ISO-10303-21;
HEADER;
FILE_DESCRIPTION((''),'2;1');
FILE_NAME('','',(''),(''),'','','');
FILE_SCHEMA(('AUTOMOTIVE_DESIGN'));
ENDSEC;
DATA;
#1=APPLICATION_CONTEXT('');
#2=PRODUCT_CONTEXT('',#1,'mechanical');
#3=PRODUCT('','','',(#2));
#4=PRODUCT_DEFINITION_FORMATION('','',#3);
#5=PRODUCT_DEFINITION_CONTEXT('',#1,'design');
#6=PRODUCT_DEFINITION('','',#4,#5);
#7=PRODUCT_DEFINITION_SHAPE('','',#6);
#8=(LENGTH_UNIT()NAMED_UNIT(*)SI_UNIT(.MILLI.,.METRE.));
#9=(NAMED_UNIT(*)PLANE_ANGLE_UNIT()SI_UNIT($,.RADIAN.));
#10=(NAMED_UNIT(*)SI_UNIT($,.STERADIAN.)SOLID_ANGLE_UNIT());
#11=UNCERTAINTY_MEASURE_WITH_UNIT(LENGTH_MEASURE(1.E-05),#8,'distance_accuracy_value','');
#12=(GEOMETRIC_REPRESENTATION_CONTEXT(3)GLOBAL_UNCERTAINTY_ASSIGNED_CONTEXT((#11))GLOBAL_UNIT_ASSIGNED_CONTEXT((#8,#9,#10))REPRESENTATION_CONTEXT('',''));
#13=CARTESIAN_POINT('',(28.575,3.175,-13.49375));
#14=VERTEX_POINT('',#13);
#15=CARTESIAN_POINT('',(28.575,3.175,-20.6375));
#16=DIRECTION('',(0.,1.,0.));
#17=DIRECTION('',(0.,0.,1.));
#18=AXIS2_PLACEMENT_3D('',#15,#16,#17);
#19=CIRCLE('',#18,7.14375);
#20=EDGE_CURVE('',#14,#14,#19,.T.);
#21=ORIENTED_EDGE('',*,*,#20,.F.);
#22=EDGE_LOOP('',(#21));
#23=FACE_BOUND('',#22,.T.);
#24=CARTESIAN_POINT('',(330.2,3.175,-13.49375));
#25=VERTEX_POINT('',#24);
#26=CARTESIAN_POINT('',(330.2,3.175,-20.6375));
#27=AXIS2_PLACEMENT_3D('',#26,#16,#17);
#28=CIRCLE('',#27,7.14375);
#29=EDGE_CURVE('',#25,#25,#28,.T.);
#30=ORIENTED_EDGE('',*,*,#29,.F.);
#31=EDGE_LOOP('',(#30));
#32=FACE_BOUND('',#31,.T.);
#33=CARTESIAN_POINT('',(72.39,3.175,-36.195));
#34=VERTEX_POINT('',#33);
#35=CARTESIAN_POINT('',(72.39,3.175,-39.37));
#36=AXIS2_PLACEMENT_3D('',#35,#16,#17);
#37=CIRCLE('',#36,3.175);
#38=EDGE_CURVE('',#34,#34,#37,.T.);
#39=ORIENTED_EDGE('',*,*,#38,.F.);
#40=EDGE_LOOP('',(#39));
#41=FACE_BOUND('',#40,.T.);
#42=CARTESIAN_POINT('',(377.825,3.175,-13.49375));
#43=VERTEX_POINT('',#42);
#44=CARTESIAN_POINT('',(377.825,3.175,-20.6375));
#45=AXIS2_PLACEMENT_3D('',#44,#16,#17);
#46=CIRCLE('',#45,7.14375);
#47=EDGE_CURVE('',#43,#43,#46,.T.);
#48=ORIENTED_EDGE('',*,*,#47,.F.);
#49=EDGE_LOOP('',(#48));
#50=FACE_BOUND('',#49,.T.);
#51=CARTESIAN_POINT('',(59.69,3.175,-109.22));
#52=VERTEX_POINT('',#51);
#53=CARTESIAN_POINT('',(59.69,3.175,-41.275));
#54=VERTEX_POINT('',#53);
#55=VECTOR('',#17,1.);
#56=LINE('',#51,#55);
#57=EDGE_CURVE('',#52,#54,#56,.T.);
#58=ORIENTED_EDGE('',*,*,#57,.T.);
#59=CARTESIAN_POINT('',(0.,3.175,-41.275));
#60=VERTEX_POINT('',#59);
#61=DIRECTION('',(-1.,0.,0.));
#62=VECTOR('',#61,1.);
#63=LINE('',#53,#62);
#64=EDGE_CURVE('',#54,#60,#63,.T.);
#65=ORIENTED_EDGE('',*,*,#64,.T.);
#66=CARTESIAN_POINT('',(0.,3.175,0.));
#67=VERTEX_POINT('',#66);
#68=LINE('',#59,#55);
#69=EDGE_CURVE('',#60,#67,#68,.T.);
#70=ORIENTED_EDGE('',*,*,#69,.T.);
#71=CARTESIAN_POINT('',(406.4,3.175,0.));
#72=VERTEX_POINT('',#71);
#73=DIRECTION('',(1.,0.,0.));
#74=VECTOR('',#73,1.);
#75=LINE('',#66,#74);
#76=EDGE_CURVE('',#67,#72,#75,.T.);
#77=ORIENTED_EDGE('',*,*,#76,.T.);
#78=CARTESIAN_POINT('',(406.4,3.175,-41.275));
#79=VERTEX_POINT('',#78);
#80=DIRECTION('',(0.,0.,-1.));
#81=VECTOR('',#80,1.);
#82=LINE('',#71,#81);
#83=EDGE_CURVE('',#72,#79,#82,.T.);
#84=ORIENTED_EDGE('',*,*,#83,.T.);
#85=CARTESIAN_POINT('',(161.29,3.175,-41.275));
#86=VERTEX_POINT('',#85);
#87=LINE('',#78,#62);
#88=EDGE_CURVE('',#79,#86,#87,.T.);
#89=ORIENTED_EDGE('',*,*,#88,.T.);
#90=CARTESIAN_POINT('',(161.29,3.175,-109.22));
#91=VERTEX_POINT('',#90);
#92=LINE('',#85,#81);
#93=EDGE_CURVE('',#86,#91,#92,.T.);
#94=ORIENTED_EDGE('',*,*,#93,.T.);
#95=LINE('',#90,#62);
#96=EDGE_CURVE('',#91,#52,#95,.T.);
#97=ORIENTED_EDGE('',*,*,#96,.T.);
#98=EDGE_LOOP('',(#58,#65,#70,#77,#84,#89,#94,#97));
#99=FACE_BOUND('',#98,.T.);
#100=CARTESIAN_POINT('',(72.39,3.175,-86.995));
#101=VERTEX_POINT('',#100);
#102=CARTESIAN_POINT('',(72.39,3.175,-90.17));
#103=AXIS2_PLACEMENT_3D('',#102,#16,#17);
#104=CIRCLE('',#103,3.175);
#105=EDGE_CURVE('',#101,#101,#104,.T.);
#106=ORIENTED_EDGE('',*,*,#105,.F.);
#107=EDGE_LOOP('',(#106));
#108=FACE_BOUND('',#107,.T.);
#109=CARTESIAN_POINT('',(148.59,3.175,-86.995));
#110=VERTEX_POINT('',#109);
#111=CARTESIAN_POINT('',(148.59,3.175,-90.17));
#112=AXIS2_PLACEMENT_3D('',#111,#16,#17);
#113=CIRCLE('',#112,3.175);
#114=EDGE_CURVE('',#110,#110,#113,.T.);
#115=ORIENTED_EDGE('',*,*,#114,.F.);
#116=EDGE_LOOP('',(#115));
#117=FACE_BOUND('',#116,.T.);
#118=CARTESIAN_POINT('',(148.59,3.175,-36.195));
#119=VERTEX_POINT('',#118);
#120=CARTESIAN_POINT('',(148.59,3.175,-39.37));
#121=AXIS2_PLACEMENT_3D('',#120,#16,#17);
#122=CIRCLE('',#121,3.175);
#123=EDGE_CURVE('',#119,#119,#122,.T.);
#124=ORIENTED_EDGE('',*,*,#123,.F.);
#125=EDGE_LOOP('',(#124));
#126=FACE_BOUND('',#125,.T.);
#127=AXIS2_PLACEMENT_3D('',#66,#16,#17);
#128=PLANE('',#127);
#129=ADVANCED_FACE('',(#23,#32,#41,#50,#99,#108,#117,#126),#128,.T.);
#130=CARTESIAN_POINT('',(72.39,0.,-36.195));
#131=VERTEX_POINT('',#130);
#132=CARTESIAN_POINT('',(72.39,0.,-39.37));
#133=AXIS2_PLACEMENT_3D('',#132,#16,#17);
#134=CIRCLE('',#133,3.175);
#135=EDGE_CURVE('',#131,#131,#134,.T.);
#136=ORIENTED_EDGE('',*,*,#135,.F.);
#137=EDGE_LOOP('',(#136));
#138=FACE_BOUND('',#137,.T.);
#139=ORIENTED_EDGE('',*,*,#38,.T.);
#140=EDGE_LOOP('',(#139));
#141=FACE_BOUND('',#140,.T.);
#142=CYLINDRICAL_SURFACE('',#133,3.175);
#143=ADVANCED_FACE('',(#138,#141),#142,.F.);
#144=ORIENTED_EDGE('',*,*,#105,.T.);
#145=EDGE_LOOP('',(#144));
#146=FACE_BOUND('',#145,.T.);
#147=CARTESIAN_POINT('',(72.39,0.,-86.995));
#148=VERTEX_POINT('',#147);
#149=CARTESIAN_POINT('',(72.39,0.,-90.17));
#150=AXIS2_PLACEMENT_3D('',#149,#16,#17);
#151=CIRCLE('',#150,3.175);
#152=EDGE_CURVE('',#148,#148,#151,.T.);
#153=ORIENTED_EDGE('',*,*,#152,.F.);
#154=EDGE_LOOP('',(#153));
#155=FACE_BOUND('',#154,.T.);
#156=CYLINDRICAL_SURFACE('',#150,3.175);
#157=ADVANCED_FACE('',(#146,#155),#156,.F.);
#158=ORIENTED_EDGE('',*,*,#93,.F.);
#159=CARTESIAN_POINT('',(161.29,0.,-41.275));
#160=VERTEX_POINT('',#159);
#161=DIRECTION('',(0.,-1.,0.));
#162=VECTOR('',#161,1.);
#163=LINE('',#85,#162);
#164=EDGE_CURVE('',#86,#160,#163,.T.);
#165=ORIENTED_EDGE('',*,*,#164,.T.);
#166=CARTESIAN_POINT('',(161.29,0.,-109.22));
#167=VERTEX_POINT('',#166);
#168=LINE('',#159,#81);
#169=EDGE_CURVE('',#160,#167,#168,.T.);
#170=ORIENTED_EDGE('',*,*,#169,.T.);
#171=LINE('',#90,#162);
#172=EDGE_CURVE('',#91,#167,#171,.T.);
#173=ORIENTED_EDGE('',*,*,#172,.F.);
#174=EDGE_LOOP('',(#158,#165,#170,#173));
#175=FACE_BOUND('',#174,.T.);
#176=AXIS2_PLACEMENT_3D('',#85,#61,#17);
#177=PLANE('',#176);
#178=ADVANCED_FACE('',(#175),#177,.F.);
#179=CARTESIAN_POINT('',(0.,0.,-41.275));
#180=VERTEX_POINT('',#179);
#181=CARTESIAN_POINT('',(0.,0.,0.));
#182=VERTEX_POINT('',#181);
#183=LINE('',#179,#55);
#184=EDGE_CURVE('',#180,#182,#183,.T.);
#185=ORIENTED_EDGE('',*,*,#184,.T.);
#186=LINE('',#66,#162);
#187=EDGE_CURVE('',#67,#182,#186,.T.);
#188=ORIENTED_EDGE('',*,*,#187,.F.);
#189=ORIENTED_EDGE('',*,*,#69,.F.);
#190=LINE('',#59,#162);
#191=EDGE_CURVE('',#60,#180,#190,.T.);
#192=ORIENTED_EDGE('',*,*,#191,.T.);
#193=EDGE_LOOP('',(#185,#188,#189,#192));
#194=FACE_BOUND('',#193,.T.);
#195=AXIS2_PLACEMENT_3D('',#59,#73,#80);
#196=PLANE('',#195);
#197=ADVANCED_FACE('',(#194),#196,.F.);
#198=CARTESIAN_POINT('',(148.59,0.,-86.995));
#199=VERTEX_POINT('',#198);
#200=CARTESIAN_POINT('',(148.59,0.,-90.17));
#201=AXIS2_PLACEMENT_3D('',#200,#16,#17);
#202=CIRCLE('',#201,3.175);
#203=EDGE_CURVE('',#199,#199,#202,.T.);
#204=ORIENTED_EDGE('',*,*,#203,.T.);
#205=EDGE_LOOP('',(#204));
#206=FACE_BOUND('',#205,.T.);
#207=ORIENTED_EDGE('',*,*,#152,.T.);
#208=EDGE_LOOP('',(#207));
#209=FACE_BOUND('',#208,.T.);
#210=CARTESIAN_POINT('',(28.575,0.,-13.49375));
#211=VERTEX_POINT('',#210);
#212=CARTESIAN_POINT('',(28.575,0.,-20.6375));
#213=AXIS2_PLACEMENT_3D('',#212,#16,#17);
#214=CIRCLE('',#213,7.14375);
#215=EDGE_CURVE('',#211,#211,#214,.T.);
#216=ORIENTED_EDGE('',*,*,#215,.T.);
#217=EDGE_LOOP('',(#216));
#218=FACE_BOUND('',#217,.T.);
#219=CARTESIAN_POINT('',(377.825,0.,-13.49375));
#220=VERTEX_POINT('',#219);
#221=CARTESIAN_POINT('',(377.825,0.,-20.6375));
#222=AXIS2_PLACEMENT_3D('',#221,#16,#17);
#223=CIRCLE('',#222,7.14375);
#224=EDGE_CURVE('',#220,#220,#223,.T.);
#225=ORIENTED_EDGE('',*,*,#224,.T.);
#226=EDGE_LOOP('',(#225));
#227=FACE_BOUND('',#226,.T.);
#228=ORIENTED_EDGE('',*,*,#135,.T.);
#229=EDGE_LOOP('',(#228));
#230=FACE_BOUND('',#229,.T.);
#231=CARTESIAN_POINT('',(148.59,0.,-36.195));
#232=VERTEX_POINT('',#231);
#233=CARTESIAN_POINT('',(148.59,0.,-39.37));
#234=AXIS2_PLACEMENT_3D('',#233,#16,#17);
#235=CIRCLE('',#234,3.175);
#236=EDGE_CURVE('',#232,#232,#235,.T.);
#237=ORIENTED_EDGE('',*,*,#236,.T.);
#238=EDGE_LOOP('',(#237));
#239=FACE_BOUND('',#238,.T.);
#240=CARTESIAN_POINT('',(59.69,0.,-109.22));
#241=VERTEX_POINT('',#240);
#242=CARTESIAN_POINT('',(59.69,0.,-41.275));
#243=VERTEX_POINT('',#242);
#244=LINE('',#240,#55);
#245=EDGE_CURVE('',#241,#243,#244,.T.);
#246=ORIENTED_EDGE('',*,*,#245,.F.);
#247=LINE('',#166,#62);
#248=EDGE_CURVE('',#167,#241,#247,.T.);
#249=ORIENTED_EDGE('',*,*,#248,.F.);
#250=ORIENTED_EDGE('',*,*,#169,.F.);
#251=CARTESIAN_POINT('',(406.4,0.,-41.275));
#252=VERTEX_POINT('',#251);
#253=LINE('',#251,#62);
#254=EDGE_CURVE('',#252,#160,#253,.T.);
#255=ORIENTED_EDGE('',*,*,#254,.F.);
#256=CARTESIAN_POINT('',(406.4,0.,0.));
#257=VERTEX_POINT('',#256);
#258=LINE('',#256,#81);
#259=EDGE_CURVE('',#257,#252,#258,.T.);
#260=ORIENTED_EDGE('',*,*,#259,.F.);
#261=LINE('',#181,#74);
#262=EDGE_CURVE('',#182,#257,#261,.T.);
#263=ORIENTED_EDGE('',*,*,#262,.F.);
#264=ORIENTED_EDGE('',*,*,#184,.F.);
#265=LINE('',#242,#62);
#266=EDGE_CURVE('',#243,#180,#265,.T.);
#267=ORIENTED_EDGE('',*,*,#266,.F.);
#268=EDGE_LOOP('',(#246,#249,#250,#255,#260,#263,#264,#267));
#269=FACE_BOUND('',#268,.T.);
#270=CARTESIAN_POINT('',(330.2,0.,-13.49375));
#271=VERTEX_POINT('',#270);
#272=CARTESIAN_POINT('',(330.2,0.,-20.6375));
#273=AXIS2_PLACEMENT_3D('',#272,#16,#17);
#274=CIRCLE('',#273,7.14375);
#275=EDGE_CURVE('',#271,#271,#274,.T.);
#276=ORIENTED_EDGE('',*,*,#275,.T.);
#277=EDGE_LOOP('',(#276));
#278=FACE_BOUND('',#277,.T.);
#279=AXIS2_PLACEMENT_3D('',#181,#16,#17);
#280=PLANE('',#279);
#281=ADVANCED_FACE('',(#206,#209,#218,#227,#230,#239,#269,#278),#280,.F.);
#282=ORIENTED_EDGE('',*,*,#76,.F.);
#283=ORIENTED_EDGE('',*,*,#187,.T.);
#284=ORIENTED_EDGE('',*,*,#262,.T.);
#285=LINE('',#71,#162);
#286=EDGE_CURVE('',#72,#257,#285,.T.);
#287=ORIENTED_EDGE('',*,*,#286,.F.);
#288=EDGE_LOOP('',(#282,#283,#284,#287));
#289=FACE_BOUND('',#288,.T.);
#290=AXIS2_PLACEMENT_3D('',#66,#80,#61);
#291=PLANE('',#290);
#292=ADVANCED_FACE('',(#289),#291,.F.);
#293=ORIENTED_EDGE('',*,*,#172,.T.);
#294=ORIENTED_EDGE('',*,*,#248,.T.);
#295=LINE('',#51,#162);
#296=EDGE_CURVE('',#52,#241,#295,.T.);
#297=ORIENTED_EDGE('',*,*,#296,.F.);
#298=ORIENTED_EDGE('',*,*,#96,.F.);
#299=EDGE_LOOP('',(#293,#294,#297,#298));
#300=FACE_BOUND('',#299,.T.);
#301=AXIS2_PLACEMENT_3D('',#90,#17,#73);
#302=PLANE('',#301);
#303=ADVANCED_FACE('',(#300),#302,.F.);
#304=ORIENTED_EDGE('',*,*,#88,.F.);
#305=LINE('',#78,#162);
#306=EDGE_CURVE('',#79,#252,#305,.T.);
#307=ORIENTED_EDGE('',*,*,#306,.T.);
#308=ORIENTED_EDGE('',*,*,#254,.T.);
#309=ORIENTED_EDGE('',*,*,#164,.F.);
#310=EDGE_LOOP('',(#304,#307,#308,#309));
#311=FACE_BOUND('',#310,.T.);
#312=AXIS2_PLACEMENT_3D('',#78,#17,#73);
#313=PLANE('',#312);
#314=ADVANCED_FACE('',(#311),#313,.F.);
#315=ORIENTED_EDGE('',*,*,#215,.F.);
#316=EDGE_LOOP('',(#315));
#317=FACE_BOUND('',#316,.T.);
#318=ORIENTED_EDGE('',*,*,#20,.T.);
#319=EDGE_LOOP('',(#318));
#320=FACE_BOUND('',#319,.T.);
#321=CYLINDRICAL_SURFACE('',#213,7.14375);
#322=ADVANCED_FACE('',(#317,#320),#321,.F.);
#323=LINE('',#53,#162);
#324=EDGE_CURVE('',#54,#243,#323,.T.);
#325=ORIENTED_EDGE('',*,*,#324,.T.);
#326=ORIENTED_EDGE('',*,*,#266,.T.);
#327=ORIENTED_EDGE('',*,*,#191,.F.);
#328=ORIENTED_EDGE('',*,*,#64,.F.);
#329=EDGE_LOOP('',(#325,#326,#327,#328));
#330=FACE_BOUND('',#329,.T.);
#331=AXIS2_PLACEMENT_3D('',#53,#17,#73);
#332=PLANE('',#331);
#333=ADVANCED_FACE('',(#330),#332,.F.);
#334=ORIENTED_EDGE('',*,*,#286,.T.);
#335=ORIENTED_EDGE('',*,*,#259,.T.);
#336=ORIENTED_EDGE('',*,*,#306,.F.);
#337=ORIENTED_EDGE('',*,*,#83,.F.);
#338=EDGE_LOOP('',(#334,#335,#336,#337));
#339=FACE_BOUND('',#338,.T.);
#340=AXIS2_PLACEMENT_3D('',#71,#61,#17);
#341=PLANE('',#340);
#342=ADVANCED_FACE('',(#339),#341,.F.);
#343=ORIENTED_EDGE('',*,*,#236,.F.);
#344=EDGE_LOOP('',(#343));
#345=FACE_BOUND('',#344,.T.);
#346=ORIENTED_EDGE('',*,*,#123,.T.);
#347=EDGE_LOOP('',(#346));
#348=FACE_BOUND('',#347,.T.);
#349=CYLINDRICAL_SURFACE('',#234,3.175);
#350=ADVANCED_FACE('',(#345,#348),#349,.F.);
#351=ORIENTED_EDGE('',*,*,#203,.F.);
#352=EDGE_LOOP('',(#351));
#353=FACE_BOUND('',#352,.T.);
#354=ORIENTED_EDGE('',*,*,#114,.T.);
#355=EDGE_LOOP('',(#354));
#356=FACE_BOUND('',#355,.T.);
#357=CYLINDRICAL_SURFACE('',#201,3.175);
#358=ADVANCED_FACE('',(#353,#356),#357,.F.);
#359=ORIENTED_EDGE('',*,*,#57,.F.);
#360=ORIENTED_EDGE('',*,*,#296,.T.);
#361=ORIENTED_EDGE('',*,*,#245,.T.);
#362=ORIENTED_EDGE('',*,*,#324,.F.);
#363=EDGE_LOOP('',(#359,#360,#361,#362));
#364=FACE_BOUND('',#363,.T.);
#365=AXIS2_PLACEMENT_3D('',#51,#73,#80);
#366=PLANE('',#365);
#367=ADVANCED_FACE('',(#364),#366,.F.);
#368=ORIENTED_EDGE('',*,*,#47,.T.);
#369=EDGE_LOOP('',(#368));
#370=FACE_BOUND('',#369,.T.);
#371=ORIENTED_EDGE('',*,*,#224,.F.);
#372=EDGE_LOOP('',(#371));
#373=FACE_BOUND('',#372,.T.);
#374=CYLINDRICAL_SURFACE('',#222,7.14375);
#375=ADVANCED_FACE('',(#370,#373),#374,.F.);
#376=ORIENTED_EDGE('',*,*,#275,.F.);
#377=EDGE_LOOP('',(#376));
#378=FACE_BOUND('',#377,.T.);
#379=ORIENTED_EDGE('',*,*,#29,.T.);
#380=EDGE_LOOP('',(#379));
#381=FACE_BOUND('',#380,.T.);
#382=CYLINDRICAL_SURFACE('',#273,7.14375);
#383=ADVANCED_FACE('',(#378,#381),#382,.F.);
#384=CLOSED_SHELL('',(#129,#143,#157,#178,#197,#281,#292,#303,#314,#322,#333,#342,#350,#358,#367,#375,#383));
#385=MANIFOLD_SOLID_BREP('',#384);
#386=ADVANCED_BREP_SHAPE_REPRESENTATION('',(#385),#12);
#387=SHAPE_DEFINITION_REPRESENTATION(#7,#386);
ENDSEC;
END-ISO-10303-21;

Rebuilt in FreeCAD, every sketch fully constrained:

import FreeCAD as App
import Part
import Sketcher
Q = App.Units.Quantity


def add_polygon(sketch, points):
    """Adds a closed chain of lines whose ends are joined by coincident constraints."""
    first, n = sketch.GeometryCount, len(points)
    for a, b in zip(points, points[1:] + points[:1]):
        sketch.addGeometry(Part.LineSegment(App.Vector(*a, 0), App.Vector(*b, 0)), False)
    for i in range(n):
        sketch.addConstraint(Sketcher.Constraint("Coincident", first + i, 2, first + (i + 1) % n, 1))

doc = App.newDocument("Part")
body = doc.addObject("PartDesign::Body", "Body")

# Sketch on XZ plane
sketch1 = body.newObject("Sketcher::SketchObject", "Sketch")
sketch1.AttachmentSupport = (doc.getObject("XZ_Plane"), [""])
sketch1.MapMode = "FlatFace"
add_polygon(sketch1, [(0, 0), (406, 0), (406, -41), (161, -41), (161, -109), (60, -109), (60, -41), (0, -41)])  # lines 0-7
sketch1.addConstraint(Sketcher.Constraint("Horizontal", 0))
sketch1.addConstraint(Sketcher.Constraint("Vertical", 1))
sketch1.addConstraint(Sketcher.Constraint("Horizontal", 2))
sketch1.addConstraint(Sketcher.Constraint("Vertical", 3))
sketch1.addConstraint(Sketcher.Constraint("Horizontal", 4))
sketch1.addConstraint(Sketcher.Constraint("Vertical", 5))
sketch1.addConstraint(Sketcher.Constraint("Horizontal", 6))
sketch1.addConstraint(Sketcher.Constraint("Vertical", 7))
sketch1.addConstraint(Sketcher.Constraint("Coincident", 7, 2, -1, 1))
sketch1.addConstraint(Sketcher.Constraint("Horizontal", 2, 2, 5, 2))
sketch1.addConstraint(Sketcher.Constraint("DistanceX", 0, 1, 0, 2, Q("16 in")))
sketch1.addConstraint(Sketcher.Constraint("DistanceX", 4, 2, 4, 1, Q("4 in")))
sketch1.addConstraint(Sketcher.Constraint("DistanceX", 2, 2, 2, 1, Q("9.65 in")))
sketch1.addConstraint(Sketcher.Constraint("DistanceY", 3, 2, -1, 1, Q("4.3 in")))
sketch1.addConstraint(Sketcher.Constraint("DistanceY", 1, 2, 1, 1, Q("1.625 in")))
pad1 = body.newObject("PartDesign::Pad", "Pad")
pad1.Profile = sketch1
pad1.Length = Q("0.125 in")
pad1.Reversed = True

# Sketch on XZ plane
sketch2 = body.newObject("Sketcher::SketchObject", "Sketch001")
sketch2.AttachmentSupport = (doc.getObject("XZ_Plane"), [""])
sketch2.MapMode = "FlatFace"
sketch2.AttachmentOffset = App.Placement(App.Vector(0, 0, -0.125 * 25.4), App.Rotation())
sketch2.addGeometry(Part.Circle(App.Vector(28.6, -20.6, 0), App.Vector(0, 0, 1), 7.1), False)
sketch2.addGeometry(Part.Circle(App.Vector(72.4, -90.2, 0), App.Vector(0, 0, 1), 3.2), False)
sketch2.addGeometry(Part.Circle(App.Vector(330.2, -20.6, 0), App.Vector(0, 0, 1), 7.1), False)
sketch2.addGeometry(Part.Circle(App.Vector(377.8, -20.6, 0), App.Vector(0, 0, 1), 7.1), False)
sketch2.addGeometry(Part.Circle(App.Vector(72.4, -39.4, 0), App.Vector(0, 0, 1), 3.2), False)
sketch2.addGeometry(Part.Circle(App.Vector(148.6, -39.4, 0), App.Vector(0, 0, 1), 3.2), False)
sketch2.addGeometry(Part.Circle(App.Vector(148.6, -90.2, 0), App.Vector(0, 0, 1), 3.2), False)
sketch2.addConstraint(Sketcher.Constraint("Equal", 0, 2))
sketch2.addConstraint(Sketcher.Constraint("Equal", 2, 3))
sketch2.addConstraint(Sketcher.Constraint("Equal", 1, 4))
sketch2.addConstraint(Sketcher.Constraint("Equal", 4, 5))
sketch2.addConstraint(Sketcher.Constraint("Equal", 5, 6))
sketch2.addConstraint(Sketcher.Constraint("Horizontal", 0, 3, 2, 3))
sketch2.addConstraint(Sketcher.Constraint("Horizontal", 2, 3, 3, 3))
sketch2.addConstraint(Sketcher.Constraint("Horizontal", 4, 3, 5, 3))
sketch2.addConstraint(Sketcher.Constraint("Horizontal", 1, 3, 6, 3))
sketch2.addConstraint(Sketcher.Constraint("Vertical", 1, 3, 4, 3))
sketch2.addConstraint(Sketcher.Constraint("Vertical", 5, 3, 6, 3))
sketch2.addConstraint(Sketcher.Constraint("Diameter", 1, Q("0.25 in")))
sketch2.addConstraint(Sketcher.Constraint("Diameter", 0, Q("0.5625 in")))
sketch2.addConstraint(Sketcher.Constraint("DistanceX", -1, 1, 2, 3, Q("13 in")))
sketch2.addConstraint(Sketcher.Constraint("DistanceY", 1, 3, 4, 3, Q("2 in")))
sketch2.addConstraint(Sketcher.Constraint("DistanceX", 4, 3, 5, 3, Q("3 in")))
sketch2.addConstraint(Sketcher.Constraint("DistanceX", -1, 1, 1, 3, Q("2.85 in")))
sketch2.addConstraint(Sketcher.Constraint("DistanceY", 1, 3, -1, 1, Q("3.55 in")))
sketch2.addConstraint(Sketcher.Constraint("DistanceX", 0, 3, 3, 3, Q("13.75 in")))
sketch2.addConstraint(Sketcher.Constraint("DistanceX", -1, 1, 0, 3, Q("1.125 in")))
sketch2.addConstraint(Sketcher.Constraint("DistanceY", 0, 3, -1, 1, Q("0.8125 in")))
pocket1 = body.newObject("PartDesign::Pocket", "Pocket")
pocket1.Profile = sketch2
pocket1.Type = "ThroughAll"
pocket1.Reversed = True

doc.recompute()
